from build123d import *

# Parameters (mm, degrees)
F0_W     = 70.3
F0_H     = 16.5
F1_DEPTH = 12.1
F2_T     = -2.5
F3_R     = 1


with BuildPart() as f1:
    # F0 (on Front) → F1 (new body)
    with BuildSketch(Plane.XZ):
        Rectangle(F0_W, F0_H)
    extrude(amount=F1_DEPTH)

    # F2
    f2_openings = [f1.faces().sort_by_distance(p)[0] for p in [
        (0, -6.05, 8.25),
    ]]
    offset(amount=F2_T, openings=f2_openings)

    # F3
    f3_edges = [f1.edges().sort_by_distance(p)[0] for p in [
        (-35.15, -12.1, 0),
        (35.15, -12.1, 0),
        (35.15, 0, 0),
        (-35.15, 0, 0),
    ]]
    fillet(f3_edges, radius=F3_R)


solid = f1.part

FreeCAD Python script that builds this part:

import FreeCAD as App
import Part
import Sketcher

V = App.Vector


def edges_at(feature, points):
    """Names of the edges that pass closest to the given points."""
    edges = feature.Shape.Edges
    near = lambda p: min(range(len(edges)), key=lambda i: edges[i].distToShape(Part.Vertex(*p))[0])
    return sorted({f"Edge{near(p) + 1}" for p in points})


def faces_at(feature, points):
    """Names of the faces that lie closest to the given points."""
    faces = feature.Shape.Faces
    near = lambda p: min(range(len(faces)), key=lambda i: faces[i].distToShape(Part.Vertex(*p))[0])
    return sorted({f"Face{near(p) + 1}" for p in points})


def add_polygon(sketch, points):
    """Adds a closed chain of lines whose ends are joined by coincident constraints."""
    first, n = sketch.GeometryCount, len(points)
    for a, b in zip(points, points[1:] + points[:1]):
        sketch.addGeometry(Part.LineSegment(App.Vector(*a, 0), App.Vector(*b, 0)), False)
    for i in range(n):
        sketch.addConstraint(Sketcher.Constraint("Coincident", first + i, 2, first + (i + 1) % n, 1))

doc = App.newDocument("Part")
body = doc.addObject("PartDesign::Body", "Body")

sketch1 = body.newObject("Sketcher::SketchObject", "Sketch")
sketch1.AttachmentSupport = (doc.getObject("XZ_Plane"), [""])
sketch1.MapMode = "FlatFace"
add_polygon(sketch1, [(-35, 8), (-35, -8), (35, -8), (35, 8)])
sketch1.addConstraint([
    Sketcher.Constraint("Vertical", 0),
    Sketcher.Constraint("Horizontal", 1),
    Sketcher.Constraint("Vertical", 2),
    Sketcher.Constraint("Horizontal", 3),
    Sketcher.Constraint("Symmetric", 0, 2, 2, 2, -1, 1),
    Sketcher.Constraint("DistanceX", 1, 1, 1, 2, 70.3),
    Sketcher.Constraint("DistanceY", 0, 2, 0, 1, 16.5),
])
pad1 = body.newObject("PartDesign::Pad", "Pad")
pad1.Profile = sketch1
pad1.Length = 12.1
doc.recompute()

thickness = body.newObject("PartDesign::Thickness", "Thickness")
thickness.Base = (pad1, faces_at(pad1, [(0, -6.05, 8.25)]))
thickness.Value = 2.5
thickness.Reversed = True
thickness.Join = "Arc"
doc.recompute()

fillet = body.newObject("PartDesign::Fillet", "Fillet")
fillet.Base = (thickness, edges_at(thickness, [
    (-35.15, -12.1, 0),
    (35.15, -12.1, 0),
    (35.15, 0, 0),
    (-35.15, 0, 0),
]))
fillet.Radius = 1

doc.recompute()
